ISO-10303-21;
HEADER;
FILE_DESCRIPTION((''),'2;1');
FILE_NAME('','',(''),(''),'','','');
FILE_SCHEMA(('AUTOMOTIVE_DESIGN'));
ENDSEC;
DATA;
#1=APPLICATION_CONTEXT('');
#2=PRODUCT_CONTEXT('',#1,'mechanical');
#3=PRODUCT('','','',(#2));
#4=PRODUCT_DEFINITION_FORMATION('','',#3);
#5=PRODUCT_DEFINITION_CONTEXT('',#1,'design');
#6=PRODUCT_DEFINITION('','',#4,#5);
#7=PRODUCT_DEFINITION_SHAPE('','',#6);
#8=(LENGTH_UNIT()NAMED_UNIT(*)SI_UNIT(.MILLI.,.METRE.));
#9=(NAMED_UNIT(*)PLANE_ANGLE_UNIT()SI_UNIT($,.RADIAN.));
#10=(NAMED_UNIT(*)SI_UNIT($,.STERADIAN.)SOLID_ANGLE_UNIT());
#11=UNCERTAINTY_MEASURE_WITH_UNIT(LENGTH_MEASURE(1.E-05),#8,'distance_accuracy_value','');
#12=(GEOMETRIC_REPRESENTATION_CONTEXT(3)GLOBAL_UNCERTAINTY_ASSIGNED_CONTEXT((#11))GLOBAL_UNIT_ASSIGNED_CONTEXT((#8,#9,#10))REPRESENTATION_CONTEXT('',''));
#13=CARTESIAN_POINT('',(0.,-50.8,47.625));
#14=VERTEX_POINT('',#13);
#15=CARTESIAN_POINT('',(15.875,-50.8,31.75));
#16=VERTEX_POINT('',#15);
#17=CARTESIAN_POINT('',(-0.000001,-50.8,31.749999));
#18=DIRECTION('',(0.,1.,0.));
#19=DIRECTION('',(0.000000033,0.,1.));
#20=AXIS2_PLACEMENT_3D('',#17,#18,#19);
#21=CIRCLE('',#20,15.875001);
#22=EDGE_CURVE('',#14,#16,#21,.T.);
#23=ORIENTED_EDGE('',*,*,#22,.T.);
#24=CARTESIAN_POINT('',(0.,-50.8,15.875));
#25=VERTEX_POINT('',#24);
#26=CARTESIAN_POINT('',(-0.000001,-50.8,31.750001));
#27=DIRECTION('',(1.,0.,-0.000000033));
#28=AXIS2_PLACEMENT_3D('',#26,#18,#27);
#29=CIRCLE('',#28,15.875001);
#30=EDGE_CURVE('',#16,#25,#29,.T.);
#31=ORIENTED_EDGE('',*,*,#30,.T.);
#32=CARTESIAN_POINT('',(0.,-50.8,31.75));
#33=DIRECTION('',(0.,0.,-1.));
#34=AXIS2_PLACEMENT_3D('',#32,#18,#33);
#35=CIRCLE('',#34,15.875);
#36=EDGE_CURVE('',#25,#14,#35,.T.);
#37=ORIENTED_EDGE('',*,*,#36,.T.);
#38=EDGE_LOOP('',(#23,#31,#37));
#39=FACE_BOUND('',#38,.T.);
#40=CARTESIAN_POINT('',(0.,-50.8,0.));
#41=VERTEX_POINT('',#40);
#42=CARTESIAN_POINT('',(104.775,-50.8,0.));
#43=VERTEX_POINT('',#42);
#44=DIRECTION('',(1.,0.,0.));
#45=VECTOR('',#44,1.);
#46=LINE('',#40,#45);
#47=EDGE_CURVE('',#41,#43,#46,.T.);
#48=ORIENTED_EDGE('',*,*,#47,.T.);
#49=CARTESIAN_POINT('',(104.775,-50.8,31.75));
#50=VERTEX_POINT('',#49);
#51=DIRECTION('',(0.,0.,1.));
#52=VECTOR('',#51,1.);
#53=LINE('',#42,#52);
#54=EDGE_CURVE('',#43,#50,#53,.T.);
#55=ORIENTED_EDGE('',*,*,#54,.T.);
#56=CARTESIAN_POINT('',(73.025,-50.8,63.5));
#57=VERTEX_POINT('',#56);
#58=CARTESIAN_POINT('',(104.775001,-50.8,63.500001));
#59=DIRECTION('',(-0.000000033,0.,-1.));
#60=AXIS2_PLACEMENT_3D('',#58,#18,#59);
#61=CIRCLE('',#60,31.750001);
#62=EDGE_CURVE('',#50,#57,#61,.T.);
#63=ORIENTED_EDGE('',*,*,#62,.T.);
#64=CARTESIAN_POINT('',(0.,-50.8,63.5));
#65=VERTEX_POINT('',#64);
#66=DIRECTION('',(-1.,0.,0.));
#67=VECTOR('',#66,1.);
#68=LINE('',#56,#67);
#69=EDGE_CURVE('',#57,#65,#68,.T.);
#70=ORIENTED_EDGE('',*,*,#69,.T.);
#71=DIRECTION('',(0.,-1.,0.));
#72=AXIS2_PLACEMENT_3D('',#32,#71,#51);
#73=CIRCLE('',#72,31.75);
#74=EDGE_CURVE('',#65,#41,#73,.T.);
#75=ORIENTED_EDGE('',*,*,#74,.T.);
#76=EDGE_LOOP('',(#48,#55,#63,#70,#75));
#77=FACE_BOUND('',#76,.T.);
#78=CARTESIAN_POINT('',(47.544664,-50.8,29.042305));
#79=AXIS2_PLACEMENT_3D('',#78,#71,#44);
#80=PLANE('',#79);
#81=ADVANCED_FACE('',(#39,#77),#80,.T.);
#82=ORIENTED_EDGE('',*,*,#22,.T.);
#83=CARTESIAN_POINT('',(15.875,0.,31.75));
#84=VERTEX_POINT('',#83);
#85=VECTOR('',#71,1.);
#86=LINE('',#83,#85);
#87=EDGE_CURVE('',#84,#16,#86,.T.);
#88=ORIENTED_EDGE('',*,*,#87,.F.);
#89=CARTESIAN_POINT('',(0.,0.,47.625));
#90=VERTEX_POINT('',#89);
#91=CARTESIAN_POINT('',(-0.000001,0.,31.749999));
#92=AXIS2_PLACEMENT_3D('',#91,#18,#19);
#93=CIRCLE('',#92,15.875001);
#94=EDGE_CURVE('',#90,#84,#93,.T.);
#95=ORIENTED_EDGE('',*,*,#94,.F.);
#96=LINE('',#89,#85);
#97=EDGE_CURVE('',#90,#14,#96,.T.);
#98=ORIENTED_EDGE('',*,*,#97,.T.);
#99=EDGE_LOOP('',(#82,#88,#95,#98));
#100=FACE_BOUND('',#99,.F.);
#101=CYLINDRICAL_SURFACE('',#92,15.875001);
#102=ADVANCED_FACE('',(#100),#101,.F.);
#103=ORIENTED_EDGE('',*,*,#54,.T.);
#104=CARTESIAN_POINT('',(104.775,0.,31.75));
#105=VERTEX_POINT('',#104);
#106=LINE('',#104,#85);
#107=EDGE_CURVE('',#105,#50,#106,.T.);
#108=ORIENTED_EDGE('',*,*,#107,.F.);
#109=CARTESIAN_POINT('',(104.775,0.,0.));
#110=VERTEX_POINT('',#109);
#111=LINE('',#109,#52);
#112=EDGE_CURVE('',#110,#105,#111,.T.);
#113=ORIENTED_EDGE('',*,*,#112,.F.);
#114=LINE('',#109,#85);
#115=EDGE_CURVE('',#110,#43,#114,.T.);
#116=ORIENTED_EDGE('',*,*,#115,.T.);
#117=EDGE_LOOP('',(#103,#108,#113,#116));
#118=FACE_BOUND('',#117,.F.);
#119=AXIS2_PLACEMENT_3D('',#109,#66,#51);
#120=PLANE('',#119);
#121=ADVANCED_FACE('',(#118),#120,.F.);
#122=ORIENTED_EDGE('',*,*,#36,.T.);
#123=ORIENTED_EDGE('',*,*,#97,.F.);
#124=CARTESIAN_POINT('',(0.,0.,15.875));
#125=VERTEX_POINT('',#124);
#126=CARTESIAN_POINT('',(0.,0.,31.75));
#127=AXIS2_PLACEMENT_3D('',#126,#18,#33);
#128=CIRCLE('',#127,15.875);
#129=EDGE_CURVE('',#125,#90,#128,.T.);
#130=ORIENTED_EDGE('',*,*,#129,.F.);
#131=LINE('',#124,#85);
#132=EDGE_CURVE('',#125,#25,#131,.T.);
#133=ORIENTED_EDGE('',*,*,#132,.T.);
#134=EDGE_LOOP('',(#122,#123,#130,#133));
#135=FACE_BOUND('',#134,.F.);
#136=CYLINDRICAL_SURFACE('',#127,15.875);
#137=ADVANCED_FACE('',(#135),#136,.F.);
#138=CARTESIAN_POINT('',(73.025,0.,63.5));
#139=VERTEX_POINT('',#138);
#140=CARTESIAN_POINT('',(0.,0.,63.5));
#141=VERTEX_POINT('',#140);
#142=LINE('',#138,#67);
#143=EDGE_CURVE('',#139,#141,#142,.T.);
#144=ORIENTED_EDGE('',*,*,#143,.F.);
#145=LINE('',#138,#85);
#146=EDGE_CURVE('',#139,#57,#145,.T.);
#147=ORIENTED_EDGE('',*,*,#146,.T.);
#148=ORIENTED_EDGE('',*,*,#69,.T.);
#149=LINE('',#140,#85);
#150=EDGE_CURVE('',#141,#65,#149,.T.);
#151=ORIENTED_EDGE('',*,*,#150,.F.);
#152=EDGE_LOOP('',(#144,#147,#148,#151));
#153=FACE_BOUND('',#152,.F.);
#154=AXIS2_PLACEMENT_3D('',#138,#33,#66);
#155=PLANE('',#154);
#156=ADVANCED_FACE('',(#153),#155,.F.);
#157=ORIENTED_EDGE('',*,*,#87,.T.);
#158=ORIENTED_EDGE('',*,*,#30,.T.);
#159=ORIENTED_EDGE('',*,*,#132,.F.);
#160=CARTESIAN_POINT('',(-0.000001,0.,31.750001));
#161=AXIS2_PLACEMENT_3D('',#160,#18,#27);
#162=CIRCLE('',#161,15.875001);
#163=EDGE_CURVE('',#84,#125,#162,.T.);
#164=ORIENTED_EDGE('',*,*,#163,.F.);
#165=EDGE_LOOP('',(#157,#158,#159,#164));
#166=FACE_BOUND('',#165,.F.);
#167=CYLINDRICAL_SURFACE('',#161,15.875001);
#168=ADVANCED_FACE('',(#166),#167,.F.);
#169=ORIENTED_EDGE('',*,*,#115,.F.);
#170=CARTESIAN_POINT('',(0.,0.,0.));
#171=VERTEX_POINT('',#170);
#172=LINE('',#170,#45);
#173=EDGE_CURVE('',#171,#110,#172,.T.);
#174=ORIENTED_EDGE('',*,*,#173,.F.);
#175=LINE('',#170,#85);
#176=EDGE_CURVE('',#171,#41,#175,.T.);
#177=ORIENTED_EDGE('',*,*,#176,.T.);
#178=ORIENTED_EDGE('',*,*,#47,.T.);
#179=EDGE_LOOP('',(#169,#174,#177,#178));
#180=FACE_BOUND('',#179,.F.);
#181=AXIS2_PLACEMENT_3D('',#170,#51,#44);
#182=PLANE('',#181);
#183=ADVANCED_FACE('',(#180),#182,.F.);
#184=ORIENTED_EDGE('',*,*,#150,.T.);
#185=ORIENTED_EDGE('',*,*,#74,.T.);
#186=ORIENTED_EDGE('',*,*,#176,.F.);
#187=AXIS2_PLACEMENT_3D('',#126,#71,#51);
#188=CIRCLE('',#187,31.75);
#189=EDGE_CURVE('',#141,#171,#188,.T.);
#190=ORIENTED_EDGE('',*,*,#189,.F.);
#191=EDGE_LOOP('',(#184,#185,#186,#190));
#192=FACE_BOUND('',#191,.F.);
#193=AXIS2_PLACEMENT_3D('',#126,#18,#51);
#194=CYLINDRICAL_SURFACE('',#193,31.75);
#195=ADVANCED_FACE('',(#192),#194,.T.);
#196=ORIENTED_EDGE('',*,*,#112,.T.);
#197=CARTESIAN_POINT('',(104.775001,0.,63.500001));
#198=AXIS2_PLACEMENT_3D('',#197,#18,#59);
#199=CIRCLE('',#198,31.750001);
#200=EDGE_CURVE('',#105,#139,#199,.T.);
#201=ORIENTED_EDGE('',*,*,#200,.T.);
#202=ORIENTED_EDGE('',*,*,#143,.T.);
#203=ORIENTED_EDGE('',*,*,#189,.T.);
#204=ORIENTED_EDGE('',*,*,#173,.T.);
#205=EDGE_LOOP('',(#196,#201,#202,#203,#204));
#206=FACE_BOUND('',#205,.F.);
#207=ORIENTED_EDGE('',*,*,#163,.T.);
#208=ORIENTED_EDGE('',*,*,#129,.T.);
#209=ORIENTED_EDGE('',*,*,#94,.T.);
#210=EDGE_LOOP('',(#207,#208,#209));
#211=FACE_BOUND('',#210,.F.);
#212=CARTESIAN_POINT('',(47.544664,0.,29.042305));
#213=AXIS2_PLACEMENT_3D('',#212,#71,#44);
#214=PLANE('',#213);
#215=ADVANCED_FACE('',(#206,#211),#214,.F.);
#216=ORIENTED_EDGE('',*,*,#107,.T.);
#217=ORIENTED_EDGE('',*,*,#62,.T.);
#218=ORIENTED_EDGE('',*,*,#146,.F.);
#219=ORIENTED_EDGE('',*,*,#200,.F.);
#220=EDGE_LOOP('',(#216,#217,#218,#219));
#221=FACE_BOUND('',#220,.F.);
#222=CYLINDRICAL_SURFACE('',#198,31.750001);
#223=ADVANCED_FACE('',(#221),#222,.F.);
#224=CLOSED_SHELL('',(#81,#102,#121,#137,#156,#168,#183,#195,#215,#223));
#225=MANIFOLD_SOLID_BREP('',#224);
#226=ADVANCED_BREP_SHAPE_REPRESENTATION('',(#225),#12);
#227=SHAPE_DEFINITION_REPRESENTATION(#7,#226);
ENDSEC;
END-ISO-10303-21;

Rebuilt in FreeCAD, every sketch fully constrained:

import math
import FreeCAD as App
import Part
import Sketcher

V = App.Vector
Q = App.Units.Quantity

doc = App.newDocument("Part")
body = doc.addObject("PartDesign::Body", "Body")

sketch1 = body.newObject("Sketcher::SketchObject", "Sketch")
sketch1.AttachmentSupport = (doc.getObject("XZ_Plane"), [""])
sketch1.MapMode = "FlatFace"
sketch1.addGeometry(Part.LineSegment(V(0, 0, 0), V(105, 0, 0)), False)
sketch1.addGeometry(Part.LineSegment(V(105, 0, 0), V(105, 32, 0)), False)
sketch1.addGeometry(Part.ArcOfCircle(Part.Circle(V(105, 64, 0), V(0, 0, 1), 32), math.radians(-180), math.radians(-90)), False)
sketch1.addGeometry(Part.LineSegment(V(73, 64, 0), V(0, 64, 0)), False)
sketch1.addGeometry(Part.ArcOfCircle(Part.Circle(V(0, 32, 0), V(0, 0, 1), 32), math.radians(90), math.radians(270)), False)
sketch1.addGeometry(Part.ArcOfCircle(Part.Circle(V(0, 32, 0), V(0, 0, 1), 16), math.radians(0), math.radians(90)), False)
sketch1.addGeometry(Part.ArcOfCircle(Part.Circle(V(0, 32, 0), V(0, 0, 1), 16), math.radians(-90), math.radians(0)), False)
sketch1.addGeometry(Part.ArcOfCircle(Part.Circle(V(0, 32, 0), V(0, 0, 1), 16), math.radians(90), math.radians(270)), False)
sketch1.addConstraint(Sketcher.Constraint("Coincident", 0, 2, 1, 1))
sketch1.addConstraint(Sketcher.Constraint("Coincident", 1, 2, 2, 2))
sketch1.addConstraint(Sketcher.Constraint("Coincident", 2, 1, 3, 1))
sketch1.addConstraint(Sketcher.Constraint("Tangent", 3, 2, 4, 1))
sketch1.addConstraint(Sketcher.Constraint("Tangent", 4, 2, 0, 1))
sketch1.addConstraint(Sketcher.Constraint("Tangent", 5, 1, 6, 2))
sketch1.addConstraint(Sketcher.Constraint("Tangent", 6, 1, 7, 2))
sketch1.addConstraint(Sketcher.Constraint("Tangent", 7, 1, 5, 2))
sketch1.addConstraint(Sketcher.Constraint("Horizontal", 0))
sketch1.addConstraint(Sketcher.Constraint("Vertical", 1))
sketch1.addConstraint(Sketcher.Constraint("Horizontal", 3))
sketch1.addConstraint(Sketcher.Constraint("Coincident", 4, 2, -1, 1))
sketch1.addConstraint(Sketcher.Constraint("Coincident", 5, 3, 4, 3))
sketch1.addConstraint(Sketcher.Constraint("Equal", 2, 4))
sketch1.addConstraint(Sketcher.Constraint("PointOnObject", 6, 1, -2))
sketch1.addConstraint(Sketcher.Constraint("PointOnObject", 7, 1, -2))
sketch1.addConstraint(Sketcher.Constraint("Horizontal", 7, 3, 1, 2))
sketch1.addConstraint(Sketcher.Constraint("Horizontal", 1, 2, 5, 1))
sketch1.addConstraint(Sketcher.Constraint("Vertical", 2, 3, 0, 2))
sketch1.addConstraint(Sketcher.Constraint("Radius", 2, Q("1.25 in")))
sketch1.addConstraint(Sketcher.Constraint("Radius", 5, Q("0.625 in")))
sketch1.addConstraint(Sketcher.Constraint("DistanceX", 0, 1, 0, 2, Q("4.125 in")))
pad1 = body.newObject("PartDesign::Pad", "Pad")
pad1.Profile = sketch1
pad1.Length = Q("2 in")

doc.recompute()
